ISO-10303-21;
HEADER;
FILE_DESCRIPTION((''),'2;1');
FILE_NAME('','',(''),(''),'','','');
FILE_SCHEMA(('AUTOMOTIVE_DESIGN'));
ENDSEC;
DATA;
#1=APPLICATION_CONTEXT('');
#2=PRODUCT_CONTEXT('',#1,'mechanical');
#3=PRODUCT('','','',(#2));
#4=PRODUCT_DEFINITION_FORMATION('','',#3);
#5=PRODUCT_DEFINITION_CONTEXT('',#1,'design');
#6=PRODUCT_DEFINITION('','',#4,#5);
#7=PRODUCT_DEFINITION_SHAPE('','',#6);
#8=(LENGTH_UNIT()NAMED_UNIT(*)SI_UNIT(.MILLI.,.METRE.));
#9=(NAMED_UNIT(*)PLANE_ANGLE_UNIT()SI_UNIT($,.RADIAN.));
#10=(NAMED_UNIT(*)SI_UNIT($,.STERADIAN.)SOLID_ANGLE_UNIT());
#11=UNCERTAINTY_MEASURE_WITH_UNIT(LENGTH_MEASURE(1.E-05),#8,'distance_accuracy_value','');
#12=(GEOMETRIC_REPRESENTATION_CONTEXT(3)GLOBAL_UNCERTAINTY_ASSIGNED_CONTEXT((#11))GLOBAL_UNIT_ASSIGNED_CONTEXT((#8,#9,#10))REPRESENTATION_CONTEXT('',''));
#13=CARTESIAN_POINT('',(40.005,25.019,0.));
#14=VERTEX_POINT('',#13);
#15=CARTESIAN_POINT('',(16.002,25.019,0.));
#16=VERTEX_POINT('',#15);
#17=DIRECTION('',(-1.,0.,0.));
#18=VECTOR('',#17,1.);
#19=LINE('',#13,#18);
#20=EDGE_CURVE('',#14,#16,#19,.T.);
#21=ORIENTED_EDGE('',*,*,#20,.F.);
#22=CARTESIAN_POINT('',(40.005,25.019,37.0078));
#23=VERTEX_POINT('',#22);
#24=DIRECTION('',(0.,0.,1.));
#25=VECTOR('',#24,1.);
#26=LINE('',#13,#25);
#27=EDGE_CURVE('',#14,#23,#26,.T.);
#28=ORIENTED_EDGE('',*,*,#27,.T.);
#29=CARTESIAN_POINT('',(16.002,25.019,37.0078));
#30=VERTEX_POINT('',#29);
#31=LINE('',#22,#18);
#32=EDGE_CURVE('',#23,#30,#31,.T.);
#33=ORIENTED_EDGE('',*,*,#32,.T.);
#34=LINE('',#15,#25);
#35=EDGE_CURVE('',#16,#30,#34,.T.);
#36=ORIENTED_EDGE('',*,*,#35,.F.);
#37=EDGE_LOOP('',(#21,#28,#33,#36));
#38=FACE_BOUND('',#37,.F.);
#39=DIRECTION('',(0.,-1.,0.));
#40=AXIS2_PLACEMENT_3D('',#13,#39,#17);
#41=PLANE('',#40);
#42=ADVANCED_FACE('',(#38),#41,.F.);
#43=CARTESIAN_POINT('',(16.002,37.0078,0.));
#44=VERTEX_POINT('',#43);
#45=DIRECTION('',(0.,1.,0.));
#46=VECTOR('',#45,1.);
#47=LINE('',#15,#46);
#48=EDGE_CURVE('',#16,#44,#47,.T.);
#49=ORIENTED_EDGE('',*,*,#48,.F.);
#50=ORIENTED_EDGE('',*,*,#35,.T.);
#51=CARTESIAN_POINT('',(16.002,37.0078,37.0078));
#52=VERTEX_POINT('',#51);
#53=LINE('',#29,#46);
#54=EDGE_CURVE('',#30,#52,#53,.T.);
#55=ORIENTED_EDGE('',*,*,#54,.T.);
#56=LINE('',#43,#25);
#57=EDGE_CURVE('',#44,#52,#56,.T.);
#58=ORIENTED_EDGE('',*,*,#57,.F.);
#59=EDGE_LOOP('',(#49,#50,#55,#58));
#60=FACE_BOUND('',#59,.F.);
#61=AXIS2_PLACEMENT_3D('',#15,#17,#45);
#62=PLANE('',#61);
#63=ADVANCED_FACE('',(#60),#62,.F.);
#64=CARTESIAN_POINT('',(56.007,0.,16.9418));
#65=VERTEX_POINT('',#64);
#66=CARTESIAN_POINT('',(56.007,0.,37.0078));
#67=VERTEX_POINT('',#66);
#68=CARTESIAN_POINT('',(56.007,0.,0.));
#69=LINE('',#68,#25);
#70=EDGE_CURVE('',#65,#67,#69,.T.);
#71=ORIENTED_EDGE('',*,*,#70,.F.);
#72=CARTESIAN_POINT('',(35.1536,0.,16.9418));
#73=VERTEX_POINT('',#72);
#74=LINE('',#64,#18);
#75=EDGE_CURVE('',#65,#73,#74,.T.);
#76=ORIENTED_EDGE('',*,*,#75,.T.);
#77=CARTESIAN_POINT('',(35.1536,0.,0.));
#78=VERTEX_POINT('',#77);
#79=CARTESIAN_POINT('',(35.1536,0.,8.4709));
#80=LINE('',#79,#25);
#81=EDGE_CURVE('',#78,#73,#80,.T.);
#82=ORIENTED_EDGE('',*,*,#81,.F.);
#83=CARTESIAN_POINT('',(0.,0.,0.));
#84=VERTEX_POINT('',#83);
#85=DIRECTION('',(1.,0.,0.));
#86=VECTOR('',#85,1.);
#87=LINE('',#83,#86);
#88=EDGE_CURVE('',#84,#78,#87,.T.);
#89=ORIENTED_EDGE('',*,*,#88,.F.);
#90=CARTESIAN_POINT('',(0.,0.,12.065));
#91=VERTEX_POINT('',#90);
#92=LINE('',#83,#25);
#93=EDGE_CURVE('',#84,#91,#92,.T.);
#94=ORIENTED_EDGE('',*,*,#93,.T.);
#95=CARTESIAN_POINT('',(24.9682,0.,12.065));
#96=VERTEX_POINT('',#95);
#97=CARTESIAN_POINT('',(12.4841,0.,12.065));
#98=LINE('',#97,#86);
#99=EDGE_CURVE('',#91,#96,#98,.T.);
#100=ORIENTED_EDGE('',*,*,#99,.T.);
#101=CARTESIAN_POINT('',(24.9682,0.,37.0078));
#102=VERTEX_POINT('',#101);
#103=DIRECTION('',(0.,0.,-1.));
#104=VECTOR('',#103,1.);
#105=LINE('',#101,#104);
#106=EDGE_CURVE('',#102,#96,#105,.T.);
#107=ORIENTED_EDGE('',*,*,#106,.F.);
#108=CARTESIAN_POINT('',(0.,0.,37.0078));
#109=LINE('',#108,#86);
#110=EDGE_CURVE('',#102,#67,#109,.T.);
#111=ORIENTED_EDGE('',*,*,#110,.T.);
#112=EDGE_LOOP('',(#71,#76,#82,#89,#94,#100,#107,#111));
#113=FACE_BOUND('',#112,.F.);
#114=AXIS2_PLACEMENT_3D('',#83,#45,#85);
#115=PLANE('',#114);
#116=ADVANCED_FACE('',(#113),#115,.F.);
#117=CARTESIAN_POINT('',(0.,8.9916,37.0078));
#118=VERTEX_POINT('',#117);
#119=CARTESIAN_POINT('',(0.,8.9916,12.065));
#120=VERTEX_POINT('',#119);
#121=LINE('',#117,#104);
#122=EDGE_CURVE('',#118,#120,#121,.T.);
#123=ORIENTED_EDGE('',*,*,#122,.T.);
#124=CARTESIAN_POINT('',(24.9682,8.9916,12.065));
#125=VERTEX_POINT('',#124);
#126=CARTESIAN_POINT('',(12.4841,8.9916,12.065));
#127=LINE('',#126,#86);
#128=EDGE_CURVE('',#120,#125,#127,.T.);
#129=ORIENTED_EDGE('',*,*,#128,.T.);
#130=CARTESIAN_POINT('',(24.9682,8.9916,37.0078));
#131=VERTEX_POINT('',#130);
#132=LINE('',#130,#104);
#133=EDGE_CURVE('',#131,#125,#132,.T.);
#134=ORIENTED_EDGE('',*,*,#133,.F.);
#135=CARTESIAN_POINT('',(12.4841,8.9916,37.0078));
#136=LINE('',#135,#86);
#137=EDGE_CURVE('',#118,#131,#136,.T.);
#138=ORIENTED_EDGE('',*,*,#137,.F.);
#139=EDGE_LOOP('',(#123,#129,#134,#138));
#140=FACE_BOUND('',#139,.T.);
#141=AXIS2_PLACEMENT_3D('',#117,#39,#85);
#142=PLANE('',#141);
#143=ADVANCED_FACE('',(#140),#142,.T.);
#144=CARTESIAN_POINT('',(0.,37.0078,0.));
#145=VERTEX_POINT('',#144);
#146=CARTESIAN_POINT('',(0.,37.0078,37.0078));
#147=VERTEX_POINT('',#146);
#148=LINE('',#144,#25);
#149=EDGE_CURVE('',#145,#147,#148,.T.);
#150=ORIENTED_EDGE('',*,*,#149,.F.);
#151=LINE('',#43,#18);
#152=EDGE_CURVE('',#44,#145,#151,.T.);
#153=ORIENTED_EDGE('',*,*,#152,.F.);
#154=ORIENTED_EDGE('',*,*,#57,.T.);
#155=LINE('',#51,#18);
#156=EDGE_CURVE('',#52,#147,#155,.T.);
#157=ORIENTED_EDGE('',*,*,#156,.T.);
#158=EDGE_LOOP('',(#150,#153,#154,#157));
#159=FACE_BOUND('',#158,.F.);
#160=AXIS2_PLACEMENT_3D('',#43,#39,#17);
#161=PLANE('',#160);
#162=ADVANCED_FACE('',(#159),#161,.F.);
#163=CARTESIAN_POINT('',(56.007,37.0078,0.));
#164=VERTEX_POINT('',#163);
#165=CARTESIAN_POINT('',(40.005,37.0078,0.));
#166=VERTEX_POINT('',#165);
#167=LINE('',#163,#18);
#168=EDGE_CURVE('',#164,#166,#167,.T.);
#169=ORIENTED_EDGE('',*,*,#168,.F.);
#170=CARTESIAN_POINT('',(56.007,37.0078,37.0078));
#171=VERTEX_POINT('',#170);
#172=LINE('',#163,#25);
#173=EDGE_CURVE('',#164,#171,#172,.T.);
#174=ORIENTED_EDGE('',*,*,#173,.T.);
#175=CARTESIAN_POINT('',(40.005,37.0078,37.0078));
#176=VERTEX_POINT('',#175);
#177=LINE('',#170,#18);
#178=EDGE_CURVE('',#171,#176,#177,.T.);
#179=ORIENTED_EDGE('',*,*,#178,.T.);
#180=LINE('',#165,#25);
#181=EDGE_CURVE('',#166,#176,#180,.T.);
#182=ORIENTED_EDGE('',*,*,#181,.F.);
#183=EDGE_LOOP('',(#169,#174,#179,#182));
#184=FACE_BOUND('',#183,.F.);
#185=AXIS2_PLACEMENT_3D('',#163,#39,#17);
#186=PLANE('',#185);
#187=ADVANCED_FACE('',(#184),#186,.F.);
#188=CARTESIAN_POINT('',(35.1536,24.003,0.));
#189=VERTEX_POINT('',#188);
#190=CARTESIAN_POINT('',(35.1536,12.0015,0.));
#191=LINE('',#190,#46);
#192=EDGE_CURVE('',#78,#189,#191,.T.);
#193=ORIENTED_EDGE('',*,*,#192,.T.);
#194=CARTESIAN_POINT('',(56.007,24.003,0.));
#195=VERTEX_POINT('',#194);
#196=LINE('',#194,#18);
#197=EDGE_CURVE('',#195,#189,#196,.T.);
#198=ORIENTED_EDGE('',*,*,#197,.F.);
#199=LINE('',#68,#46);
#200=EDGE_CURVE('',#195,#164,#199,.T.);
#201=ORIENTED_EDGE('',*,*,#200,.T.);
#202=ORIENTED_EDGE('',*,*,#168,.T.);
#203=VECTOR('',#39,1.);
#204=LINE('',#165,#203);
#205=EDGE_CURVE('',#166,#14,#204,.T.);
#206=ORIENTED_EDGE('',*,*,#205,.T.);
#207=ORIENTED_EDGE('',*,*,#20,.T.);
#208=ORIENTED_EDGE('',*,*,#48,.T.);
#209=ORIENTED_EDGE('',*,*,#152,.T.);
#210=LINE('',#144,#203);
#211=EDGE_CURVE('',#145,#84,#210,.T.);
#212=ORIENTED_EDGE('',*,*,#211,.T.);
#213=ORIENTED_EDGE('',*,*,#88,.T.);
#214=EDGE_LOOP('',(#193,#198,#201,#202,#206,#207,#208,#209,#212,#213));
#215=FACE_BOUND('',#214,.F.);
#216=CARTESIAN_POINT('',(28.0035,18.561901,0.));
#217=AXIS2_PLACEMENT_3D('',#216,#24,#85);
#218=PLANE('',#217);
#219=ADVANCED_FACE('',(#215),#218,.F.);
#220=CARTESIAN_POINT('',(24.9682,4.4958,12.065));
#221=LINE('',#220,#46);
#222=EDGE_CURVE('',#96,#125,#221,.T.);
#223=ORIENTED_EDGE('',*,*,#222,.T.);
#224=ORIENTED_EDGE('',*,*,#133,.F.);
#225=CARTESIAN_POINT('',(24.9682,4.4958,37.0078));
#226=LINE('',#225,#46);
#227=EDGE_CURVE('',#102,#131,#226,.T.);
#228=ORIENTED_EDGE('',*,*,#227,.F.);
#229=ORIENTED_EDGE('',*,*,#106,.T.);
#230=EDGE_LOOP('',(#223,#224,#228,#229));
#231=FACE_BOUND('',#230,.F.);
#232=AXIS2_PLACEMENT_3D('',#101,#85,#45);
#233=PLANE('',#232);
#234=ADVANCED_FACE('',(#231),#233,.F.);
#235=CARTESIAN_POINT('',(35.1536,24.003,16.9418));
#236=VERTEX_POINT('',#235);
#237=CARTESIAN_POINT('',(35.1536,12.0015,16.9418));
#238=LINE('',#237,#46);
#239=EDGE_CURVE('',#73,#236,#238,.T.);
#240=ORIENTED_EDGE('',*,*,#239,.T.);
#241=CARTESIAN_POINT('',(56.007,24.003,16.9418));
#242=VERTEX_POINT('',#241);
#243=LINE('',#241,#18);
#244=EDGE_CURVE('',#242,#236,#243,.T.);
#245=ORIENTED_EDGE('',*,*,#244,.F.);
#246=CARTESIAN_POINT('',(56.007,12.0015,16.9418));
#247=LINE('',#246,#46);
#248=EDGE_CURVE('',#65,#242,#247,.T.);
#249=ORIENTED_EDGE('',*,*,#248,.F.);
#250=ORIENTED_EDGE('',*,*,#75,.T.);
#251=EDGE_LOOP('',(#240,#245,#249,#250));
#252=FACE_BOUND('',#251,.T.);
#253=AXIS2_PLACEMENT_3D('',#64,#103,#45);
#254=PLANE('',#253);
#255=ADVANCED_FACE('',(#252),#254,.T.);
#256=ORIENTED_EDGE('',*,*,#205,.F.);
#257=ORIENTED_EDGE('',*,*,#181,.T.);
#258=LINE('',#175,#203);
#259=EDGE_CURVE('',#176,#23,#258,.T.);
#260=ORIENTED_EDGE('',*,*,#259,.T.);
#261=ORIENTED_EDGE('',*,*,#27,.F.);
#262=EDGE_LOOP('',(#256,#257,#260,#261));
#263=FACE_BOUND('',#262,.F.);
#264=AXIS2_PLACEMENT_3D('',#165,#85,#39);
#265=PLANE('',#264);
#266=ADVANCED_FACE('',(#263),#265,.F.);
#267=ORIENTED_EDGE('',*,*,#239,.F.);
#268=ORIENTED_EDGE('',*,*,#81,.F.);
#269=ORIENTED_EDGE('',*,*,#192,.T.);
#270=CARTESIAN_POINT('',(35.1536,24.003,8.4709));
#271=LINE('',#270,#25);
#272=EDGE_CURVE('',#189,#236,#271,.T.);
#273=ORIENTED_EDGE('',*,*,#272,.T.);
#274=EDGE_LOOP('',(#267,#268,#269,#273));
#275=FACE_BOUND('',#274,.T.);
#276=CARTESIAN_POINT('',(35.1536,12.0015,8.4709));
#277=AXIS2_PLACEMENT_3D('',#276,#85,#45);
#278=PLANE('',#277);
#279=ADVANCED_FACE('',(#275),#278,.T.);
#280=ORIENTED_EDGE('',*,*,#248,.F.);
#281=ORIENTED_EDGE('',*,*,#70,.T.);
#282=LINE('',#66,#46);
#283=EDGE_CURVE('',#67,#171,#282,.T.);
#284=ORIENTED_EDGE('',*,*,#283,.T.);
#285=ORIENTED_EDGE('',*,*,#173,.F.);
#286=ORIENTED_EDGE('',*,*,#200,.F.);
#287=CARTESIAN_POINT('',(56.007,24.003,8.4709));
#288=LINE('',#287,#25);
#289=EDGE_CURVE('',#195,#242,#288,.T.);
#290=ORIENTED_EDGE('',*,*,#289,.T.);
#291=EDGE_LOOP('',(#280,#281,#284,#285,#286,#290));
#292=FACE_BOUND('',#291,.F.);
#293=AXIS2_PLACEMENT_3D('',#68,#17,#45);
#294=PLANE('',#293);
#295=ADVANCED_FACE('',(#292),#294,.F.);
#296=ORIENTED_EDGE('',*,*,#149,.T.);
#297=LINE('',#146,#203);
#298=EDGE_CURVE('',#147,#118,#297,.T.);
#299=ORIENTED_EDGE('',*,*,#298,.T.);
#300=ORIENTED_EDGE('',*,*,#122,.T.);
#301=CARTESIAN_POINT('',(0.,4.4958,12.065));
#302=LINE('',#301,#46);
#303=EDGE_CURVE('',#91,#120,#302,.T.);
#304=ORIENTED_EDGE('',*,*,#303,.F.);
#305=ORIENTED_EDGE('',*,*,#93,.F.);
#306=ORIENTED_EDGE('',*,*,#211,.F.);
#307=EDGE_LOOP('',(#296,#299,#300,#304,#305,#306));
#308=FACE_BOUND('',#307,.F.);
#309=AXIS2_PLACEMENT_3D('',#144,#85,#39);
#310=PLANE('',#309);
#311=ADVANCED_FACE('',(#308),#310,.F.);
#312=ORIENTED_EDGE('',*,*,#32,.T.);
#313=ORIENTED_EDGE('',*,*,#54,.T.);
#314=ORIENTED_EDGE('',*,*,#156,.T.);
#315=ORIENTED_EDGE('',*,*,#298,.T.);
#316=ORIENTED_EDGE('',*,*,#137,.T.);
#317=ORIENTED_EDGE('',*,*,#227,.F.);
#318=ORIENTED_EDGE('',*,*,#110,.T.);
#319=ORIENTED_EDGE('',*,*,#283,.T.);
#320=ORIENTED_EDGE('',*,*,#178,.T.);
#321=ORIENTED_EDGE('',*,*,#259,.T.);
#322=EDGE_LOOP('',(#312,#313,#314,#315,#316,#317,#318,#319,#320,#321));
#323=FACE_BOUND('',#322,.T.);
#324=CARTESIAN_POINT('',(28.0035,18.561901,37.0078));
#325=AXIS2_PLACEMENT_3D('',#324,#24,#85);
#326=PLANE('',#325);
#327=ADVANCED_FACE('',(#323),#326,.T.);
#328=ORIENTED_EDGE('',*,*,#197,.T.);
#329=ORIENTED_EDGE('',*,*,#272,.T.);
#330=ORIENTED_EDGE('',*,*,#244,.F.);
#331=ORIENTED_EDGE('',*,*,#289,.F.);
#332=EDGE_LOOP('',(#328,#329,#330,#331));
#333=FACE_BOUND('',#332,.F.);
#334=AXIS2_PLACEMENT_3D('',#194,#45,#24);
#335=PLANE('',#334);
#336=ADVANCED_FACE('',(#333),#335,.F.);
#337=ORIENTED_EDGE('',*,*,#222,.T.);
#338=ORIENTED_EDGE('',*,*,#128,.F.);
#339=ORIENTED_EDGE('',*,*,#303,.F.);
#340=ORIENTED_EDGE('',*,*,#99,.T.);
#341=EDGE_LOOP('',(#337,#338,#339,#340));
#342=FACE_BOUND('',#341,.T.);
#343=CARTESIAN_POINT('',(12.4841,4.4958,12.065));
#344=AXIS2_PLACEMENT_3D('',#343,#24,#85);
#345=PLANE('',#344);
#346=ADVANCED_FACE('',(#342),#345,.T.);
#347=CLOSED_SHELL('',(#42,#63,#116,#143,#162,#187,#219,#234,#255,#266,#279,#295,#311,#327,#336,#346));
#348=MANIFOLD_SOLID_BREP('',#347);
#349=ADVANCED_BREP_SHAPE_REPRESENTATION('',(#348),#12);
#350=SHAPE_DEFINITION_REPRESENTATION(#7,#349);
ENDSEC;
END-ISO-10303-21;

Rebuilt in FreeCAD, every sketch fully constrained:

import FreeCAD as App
import Part
import Sketcher

V = App.Vector
Q = App.Units.Quantity

doc = App.newDocument("Part")
params = doc.addObject("Spreadsheet::Sheet", "Params")
for row, (alias, value) in enumerate([
    ("sketch1_width", "0.63 in"),
    ("sketch1_width2", "2.205 in"),
    ("sketch1_height", "1.457 in"),
    ("sketch1_height2", "0.472 in"),
    ("pad1_length", "1.457 in"),
    ("sketch2_width", "0.983 in"),
    ("sketch2_height", "0.354 in"),
    ("pocket1_length", "0.982 in"),
    ("sketch3_width", "0.945 in"),
    ("sketch3_height", "0.667 in"),
    ("pocket2_length", "0.821 in"),
], start=1):
    params.set(f"A{row}", alias)
    params.set(f"B{row}", "=" + value)
    params.setAlias(f"B{row}", alias)

body = doc.addObject("PartDesign::Body", "Body")

# Sketch on XY plane
sketch1 = doc.addObject("Sketcher::SketchObject", "Sketch")
body.addObject(sketch1)
sketch1.AttachmentSupport = (doc.XY_Plane, [""])
sketch1.MapMode = "FlatFace"
sketch1.addGeometry(Part.LineSegment(V(0, 37, 0), V(0, 0, 0)), False)
sketch1.addGeometry(Part.LineSegment(V(0, 0, 0), V(56, 0, 0)), False)
sketch1.addGeometry(Part.LineSegment(V(56, 0, 0), V(56, 37, 0)), False)
sketch1.addGeometry(Part.LineSegment(V(56, 37, 0), V(40, 37, 0)), False)
sketch1.addGeometry(Part.LineSegment(V(40, 37, 0), V(40, 25, 0)), False)
sketch1.addGeometry(Part.LineSegment(V(40, 25, 0), V(16, 25, 0)), False)
sketch1.addGeometry(Part.LineSegment(V(16, 25, 0), V(16, 37, 0)), False)
sketch1.addGeometry(Part.LineSegment(V(16, 37, 0), V(0, 37, 0)), False)
sketch1.addConstraint(Sketcher.Constraint("Coincident", 0, 2, 1, 1))
sketch1.addConstraint(Sketcher.Constraint("Coincident", 1, 2, 2, 1))
sketch1.addConstraint(Sketcher.Constraint("Coincident", 2, 2, 3, 1))
sketch1.addConstraint(Sketcher.Constraint("Coincident", 3, 2, 4, 1))
sketch1.addConstraint(Sketcher.Constraint("Coincident", 4, 2, 5, 1))
sketch1.addConstraint(Sketcher.Constraint("Coincident", 5, 2, 6, 1))
sketch1.addConstraint(Sketcher.Constraint("Coincident", 6, 2, 7, 1))
sketch1.addConstraint(Sketcher.Constraint("Coincident", 7, 2, 0, 1))
sketch1.addConstraint(Sketcher.Constraint("Vertical", 0))
sketch1.addConstraint(Sketcher.Constraint("Horizontal", 1))
sketch1.addConstraint(Sketcher.Constraint("Vertical", 2))
sketch1.addConstraint(Sketcher.Constraint("Horizontal", 3))
sketch1.addConstraint(Sketcher.Constraint("Vertical", 4))
sketch1.addConstraint(Sketcher.Constraint("Horizontal", 5))
sketch1.addConstraint(Sketcher.Constraint("Vertical", 6))
sketch1.addConstraint(Sketcher.Constraint("Horizontal", 7))
sketch1.addConstraint(Sketcher.Constraint("Coincident", 0, 2, -1, 1))
sketch1.addConstraint(Sketcher.Constraint("Horizontal", 3, 2, 6, 2))
sketch1.addConstraint(Sketcher.Constraint("Equal", 3, 7))
sketch1.addConstraint(Sketcher.Constraint("DistanceX", 3, 2, 3, 1, Q("0.63 in")))
sketch1.addConstraint(Sketcher.Constraint("DistanceX", 1, 1, 1, 2, Q("2.205 in")))
sketch1.addConstraint(Sketcher.Constraint("DistanceY", 0, 2, 0, 1, Q("1.457 in")))
sketch1.addConstraint(Sketcher.Constraint("DistanceY", 4, 2, 4, 1, Q("0.472 in")))
sketch1.setExpression("Constraints[19]", "Params.sketch1_width")
sketch1.setExpression("Constraints[20]", "Params.sketch1_width2")
sketch1.setExpression("Constraints[21]", "Params.sketch1_height")
sketch1.setExpression("Constraints[22]", "Params.sketch1_height2")
pad1 = doc.addObject("PartDesign::Pad", "Pad")
body.addObject(pad1)
pad1.Profile = sketch1
pad1.setExpression("Length", "Params.pad1_length")

# Sketch on XY plane
sketch2 = doc.addObject("Sketcher::SketchObject", "Sketch001")
body.addObject(sketch2)
sketch2.AttachmentSupport = (doc.XY_Plane, [""])
sketch2.MapMode = "FlatFace"
sketch2.AttachmentOffset = App.Placement(V(0, 0, 1.457 * 25.4), App.Rotation())
sketch2.addGeometry(Part.LineSegment(V(0, 9, 0), V(0, 0, 0)), False)
sketch2.addGeometry(Part.LineSegment(V(0, 0, 0), V(25, 0, 0)), False)
sketch2.addGeometry(Part.LineSegment(V(25, 0, 0), V(25, 9, 0)), False)
sketch2.addGeometry(Part.LineSegment(V(25, 9, 0), V(0, 9, 0)), False)
sketch2.addConstraint(Sketcher.Constraint("Coincident", 0, 2, 1, 1))
sketch2.addConstraint(Sketcher.Constraint("Coincident", 1, 2, 2, 1))
sketch2.addConstraint(Sketcher.Constraint("Coincident", 2, 2, 3, 1))
sketch2.addConstraint(Sketcher.Constraint("Coincident", 3, 2, 0, 1))
sketch2.addConstraint(Sketcher.Constraint("Vertical", 0))
sketch2.addConstraint(Sketcher.Constraint("Horizontal", 1))
sketch2.addConstraint(Sketcher.Constraint("Vertical", 2))
sketch2.addConstraint(Sketcher.Constraint("Horizontal", 3))
sketch2.addConstraint(Sketcher.Constraint("Coincident", 0, 2, -1, 1))
sketch2.addConstraint(Sketcher.Constraint("DistanceX", 1, 1, 1, 2, Q("0.983 in")))
sketch2.addConstraint(Sketcher.Constraint("DistanceY", 0, 2, 0, 1, Q("0.354 in")))
sketch2.setExpression("Constraints[9]", "Params.sketch2_width")
sketch2.setExpression("Constraints[10]", "Params.sketch2_height")
pocket1 = doc.addObject("PartDesign::Pocket", "Pocket")
body.addObject(pocket1)
pocket1.Profile = sketch2
pocket1.setExpression("Length", "Params.pocket1_length")

# Sketch on YZ plane
sketch3 = doc.addObject("Sketcher::SketchObject", "Sketch002")
body.addObject(sketch3)
sketch3.AttachmentSupport = (doc.YZ_Plane, [""])
sketch3.MapMode = "FlatFace"
sketch3.AttachmentOffset = App.Placement(V(0, 0, 2.205 * 25.4), App.Rotation())
sketch3.addGeometry(Part.LineSegment(V(0, 17, 0), V(0, 0, 0)), False)
sketch3.addGeometry(Part.LineSegment(V(0, 0, 0), V(24, 0, 0)), False)
sketch3.addGeometry(Part.LineSegment(V(24, 0, 0), V(24, 17, 0)), False)
sketch3.addGeometry(Part.LineSegment(V(24, 17, 0), V(0, 17, 0)), False)
sketch3.addConstraint(Sketcher.Constraint("Coincident", 0, 2, 1, 1))
sketch3.addConstraint(Sketcher.Constraint("Coincident", 1, 2, 2, 1))
sketch3.addConstraint(Sketcher.Constraint("Coincident", 2, 2, 3, 1))
sketch3.addConstraint(Sketcher.Constraint("Coincident", 3, 2, 0, 1))
sketch3.addConstraint(Sketcher.Constraint("Vertical", 0))
sketch3.addConstraint(Sketcher.Constraint("Horizontal", 1))
sketch3.addConstraint(Sketcher.Constraint("Vertical", 2))
sketch3.addConstraint(Sketcher.Constraint("Horizontal", 3))
sketch3.addConstraint(Sketcher.Constraint("Coincident", 0, 2, -1, 1))
sketch3.addConstraint(Sketcher.Constraint("DistanceX", 1, 1, 1, 2, Q("0.945 in")))
sketch3.addConstraint(Sketcher.Constraint("DistanceY", 0, 2, 0, 1, Q("0.667 in")))
sketch3.setExpression("Constraints[9]", "Params.sketch3_width")
sketch3.setExpression("Constraints[10]", "Params.sketch3_height")
pocket2 = doc.addObject("PartDesign::Pocket", "Pocket001")
body.addObject(pocket2)
pocket2.Profile = sketch3
pocket2.setExpression("Length", "Params.pocket2_length")

doc.recompute()
